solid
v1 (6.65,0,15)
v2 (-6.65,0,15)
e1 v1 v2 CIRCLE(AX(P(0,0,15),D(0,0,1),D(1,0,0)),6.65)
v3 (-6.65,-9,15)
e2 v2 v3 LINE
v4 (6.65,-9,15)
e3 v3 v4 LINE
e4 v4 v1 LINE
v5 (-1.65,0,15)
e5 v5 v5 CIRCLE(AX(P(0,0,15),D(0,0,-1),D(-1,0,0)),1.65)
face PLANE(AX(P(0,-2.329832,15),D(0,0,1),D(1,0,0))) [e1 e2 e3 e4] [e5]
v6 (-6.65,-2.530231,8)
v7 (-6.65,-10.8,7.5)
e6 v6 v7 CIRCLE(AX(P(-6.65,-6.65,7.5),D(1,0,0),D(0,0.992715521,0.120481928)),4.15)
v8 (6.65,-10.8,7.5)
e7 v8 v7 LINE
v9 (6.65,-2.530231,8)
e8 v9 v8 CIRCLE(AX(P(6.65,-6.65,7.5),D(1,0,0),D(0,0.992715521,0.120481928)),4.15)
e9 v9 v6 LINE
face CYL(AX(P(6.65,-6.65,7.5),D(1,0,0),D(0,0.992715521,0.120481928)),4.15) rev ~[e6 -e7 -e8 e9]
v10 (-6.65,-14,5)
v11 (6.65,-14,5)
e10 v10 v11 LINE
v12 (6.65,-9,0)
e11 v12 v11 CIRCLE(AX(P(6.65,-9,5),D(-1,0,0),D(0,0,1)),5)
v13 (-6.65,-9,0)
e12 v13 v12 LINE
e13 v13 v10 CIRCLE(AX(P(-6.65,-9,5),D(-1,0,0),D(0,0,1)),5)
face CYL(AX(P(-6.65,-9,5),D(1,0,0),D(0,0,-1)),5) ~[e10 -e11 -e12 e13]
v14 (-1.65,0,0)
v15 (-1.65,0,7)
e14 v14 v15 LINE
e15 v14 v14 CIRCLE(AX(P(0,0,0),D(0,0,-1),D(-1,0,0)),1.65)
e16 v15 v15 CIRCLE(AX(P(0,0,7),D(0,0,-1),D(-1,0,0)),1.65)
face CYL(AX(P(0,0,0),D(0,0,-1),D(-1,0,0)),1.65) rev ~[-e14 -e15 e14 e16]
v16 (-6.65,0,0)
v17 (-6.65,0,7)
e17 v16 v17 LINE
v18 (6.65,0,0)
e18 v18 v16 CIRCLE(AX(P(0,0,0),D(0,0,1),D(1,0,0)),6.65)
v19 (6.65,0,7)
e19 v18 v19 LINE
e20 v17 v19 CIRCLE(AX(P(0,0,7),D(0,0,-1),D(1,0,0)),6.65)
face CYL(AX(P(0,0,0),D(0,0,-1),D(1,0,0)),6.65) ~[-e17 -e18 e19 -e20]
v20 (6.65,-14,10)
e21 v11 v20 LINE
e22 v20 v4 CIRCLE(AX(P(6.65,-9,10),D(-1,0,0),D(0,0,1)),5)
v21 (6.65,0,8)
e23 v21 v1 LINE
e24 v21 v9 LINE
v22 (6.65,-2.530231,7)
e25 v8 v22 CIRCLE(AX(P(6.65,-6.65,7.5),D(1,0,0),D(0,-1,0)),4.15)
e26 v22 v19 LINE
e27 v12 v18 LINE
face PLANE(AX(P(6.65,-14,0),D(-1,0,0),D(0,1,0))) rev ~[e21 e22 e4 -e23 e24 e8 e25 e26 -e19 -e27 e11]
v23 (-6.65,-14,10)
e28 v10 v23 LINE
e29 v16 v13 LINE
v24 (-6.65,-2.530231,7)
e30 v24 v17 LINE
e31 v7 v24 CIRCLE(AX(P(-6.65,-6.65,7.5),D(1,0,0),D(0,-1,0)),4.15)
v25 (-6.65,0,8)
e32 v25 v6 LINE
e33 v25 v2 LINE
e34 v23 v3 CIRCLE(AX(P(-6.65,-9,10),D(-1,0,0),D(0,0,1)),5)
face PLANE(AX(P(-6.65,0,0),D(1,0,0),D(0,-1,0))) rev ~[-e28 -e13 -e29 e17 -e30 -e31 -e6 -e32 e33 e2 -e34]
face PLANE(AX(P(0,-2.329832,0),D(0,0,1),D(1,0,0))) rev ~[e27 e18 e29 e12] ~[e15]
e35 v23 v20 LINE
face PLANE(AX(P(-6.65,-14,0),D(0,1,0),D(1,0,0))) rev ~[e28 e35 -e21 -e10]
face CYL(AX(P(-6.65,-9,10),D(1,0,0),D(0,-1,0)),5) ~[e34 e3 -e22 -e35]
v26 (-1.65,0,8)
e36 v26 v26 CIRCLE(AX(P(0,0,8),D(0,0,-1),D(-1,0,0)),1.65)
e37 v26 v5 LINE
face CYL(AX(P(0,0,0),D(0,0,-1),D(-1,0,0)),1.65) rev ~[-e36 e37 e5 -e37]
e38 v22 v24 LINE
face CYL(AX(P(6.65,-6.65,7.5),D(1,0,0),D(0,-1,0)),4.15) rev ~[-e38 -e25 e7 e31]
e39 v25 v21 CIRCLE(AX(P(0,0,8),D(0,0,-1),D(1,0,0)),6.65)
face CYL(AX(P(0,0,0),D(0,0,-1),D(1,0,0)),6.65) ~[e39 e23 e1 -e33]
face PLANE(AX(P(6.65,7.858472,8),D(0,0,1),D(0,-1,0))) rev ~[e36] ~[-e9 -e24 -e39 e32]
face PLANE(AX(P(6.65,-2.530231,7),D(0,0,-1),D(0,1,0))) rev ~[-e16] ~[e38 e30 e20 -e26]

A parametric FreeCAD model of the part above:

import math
import FreeCAD as App
import Part
import Sketcher
from FreeCAD import Vector


def edges_at(feature, points):
    """Names of the edges that pass closest to the given points."""
    edges = feature.Shape.Edges
    near = lambda p: min(range(len(edges)), key=lambda i: edges[i].distToShape(Part.Vertex(*p))[0])
    return sorted({f"Edge{near(p) + 1}" for p in points})

doc = App.newDocument("Part")
body = doc.addObject("PartDesign::Body", "Body")

sketch1 = body.newObject("Sketcher::SketchObject", "Sketch")
sketch1.AttachmentSupport = (doc.getObject("XY_Plane"), [""])
sketch1.MapMode = "FlatFace"
sketch1.addGeometry(Part.ArcOfCircle(Part.Circle(Vector(0, 0, 0), Vector(0, 0, 1), 6.7), math.radians(0), math.radians(180)), False)
sketch1.addGeometry(Part.LineSegment(Vector(-6.7, 0, 0), Vector(-6.7, -14, 0)), False)
sketch1.addGeometry(Part.LineSegment(Vector(-6.7, -14, 0), Vector(6.7, -14, 0)), False)
sketch1.addGeometry(Part.LineSegment(Vector(6.7, -14, 0), Vector(6.7, 0, 0)), False)
sketch1.addGeometry(Part.Circle(Vector(0, 0, 0), Vector(0, 0, 1), 1.6), False)
sketch1.addConstraint(Sketcher.Constraint("Tangent", 0, 2, 1, 1))
sketch1.addConstraint(Sketcher.Constraint("Coincident", 1, 2, 2, 1))
sketch1.addConstraint(Sketcher.Constraint("Coincident", 2, 2, 3, 1))
sketch1.addConstraint(Sketcher.Constraint("Tangent", 3, 2, 0, 1))
sketch1.addConstraint(Sketcher.Constraint("Vertical", 1))
sketch1.addConstraint(Sketcher.Constraint("Horizontal", 2))
sketch1.addConstraint(Sketcher.Constraint("Vertical", 3))
sketch1.addConstraint(Sketcher.Constraint("Coincident", 0, 3, -1, 1))
sketch1.addConstraint(Sketcher.Constraint("Coincident", 4, 3, -1, 1))
sketch1.addConstraint(Sketcher.Constraint("Diameter", 4, 3.3))
sketch1.addConstraint(Sketcher.Constraint("DistanceY", 1, 2, 1, 1, 14.0))
sketch1.addConstraint(Sketcher.Constraint("Radius", 0, 6.65))
pad1 = body.newObject("PartDesign::Pad", "Pad")
pad1.Profile = sketch1
pad1.Length = 15

sketch2 = body.newObject("Sketcher::SketchObject", "Sketch001")
sketch2.AttachmentSupport = (doc.getObject("YZ_Plane"), [""])
sketch2.MapMode = "FlatFace"
sketch2.AttachmentOffset = App.Placement(Vector(0, 0, 6.65), App.Rotation())
sketch2.addGeometry(Part.LineSegment(Vector(-2.5, 7, 0), Vector(7.9, 7, 0)), False)
sketch2.addGeometry(Part.LineSegment(Vector(7.9, 7, 0), Vector(7.9, 8, 0)), False)
sketch2.addGeometry(Part.LineSegment(Vector(7.9, 8, 0), Vector(-2.5, 8, 0)), False)
sketch2.addGeometry(Part.ArcOfCircle(Part.Circle(Vector(-6.7, 7.5, 0), Vector(0, 0, 1), 4.2), math.radians(7), math.radians(180)), False)
sketch2.addGeometry(Part.ArcOfCircle(Part.Circle(Vector(-6.7, 7.5, 0), Vector(0, 0, 1), 4.2), math.radians(180), math.radians(353)), False)
sketch2.addConstraint(Sketcher.Constraint("Coincident", 0, 2, 1, 1))
sketch2.addConstraint(Sketcher.Constraint("Coincident", 1, 2, 2, 1))
sketch2.addConstraint(Sketcher.Constraint("Coincident", 2, 2, 3, 1))
sketch2.addConstraint(Sketcher.Constraint("Tangent", 3, 2, 4, 1))
sketch2.addConstraint(Sketcher.Constraint("Coincident", 4, 2, 0, 1))
sketch2.addConstraint(Sketcher.Constraint("Horizontal", 0))
sketch2.addConstraint(Sketcher.Constraint("Vertical", 1))
sketch2.addConstraint(Sketcher.Constraint("Horizontal", 2))
sketch2.addConstraint(Sketcher.Constraint("Equal", 3, 4))
sketch2.addConstraint(Sketcher.Constraint("Horizontal", 4, 3, 3, 2))
sketch2.addConstraint(Sketcher.Constraint("Vertical", 2, 2, 4, 2))
sketch2.addConstraint(Sketcher.Constraint("DistanceY", 1, 1, 1, 2, 1.0))
sketch2.addConstraint(Sketcher.Constraint("Radius", 3, 4.15))
sketch2.addConstraint(Sketcher.Constraint("DistanceY", -1, 1, 0, 2, 7.0))
sketch2.addConstraint(Sketcher.Constraint("DistanceX", 3, 2, -1, 1, 10.8))
sketch2.addConstraint(Sketcher.Constraint("DistanceX", 0, 1, 0, 2, 10.388702))
pocket1 = body.newObject("PartDesign::Pocket", "Pocket")
pocket1.Profile = sketch2
pocket1.Type = "ThroughAll"
doc.recompute()

fillet = body.newObject("PartDesign::Fillet", "Fillet")
fillet.Base = (pocket1, edges_at(pocket1, [(0, -14, 15), (0, -14, 0)]))
fillet.Radius = 5

doc.recompute()
